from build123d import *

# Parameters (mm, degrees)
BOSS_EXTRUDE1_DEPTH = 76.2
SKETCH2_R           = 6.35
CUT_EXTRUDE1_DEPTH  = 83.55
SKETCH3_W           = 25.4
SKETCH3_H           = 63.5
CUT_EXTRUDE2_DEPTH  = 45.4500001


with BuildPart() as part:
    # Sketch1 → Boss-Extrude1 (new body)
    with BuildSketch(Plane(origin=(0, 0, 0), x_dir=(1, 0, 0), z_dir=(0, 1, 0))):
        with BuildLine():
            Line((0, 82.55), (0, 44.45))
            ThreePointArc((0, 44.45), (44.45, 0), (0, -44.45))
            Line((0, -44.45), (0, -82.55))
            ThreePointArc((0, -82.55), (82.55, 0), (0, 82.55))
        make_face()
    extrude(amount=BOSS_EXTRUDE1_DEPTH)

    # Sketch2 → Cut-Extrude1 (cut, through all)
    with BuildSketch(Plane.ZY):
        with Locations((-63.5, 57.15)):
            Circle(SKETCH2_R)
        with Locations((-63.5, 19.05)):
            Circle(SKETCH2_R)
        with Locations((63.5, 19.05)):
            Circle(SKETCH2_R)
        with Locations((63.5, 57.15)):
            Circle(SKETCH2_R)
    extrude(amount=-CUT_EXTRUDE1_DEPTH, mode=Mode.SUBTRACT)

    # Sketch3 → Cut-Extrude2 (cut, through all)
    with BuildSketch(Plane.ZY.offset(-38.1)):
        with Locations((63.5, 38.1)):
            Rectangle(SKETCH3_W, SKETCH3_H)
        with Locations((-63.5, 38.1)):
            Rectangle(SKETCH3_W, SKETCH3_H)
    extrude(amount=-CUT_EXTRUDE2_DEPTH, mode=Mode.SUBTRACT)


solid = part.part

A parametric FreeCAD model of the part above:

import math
import FreeCAD as App
import Part
import Sketcher

V = App.Vector
Q = App.Units.Quantity


def add_polygon(sketch, points):
    """Adds a closed chain of lines whose ends are joined by coincident constraints."""
    first, n = sketch.GeometryCount, len(points)
    for a, b in zip(points, points[1:] + points[:1]):
        sketch.addGeometry(Part.LineSegment(App.Vector(*a, 0), App.Vector(*b, 0)), False)
    for i in range(n):
        sketch.addConstraint(Sketcher.Constraint("Coincident", first + i, 2, first + (i + 1) % n, 1))

doc = App.newDocument("Part")
body = doc.addObject("PartDesign::Body", "Body")

# Sketch on XZ plane
sketch1 = doc.addObject("Sketcher::SketchObject", "Sketch")
body.addObject(sketch1)
sketch1.AttachmentSupport = (doc.XZ_Plane, [""])
sketch1.MapMode = "FlatFace"
sketch1.addGeometry([
    Part.LineSegment(V(0, -83, 0), V(0, -44, 0)),
    Part.ArcOfCircle(Part.Circle(V(0, 0, 0), V(0, 0, 1), 44), math.radians(-90), math.radians(90)),
    Part.LineSegment(V(0, 44, 0), V(0, 83, 0)),
    Part.ArcOfCircle(Part.Circle(V(0, 0, 0), V(0, 0, 1), 83), math.radians(-90), math.radians(90)),
], False)
sketch1.addConstraint([
    Sketcher.Constraint("Coincident", 0, 2, 1, 1),
    Sketcher.Constraint("Coincident", 1, 2, 2, 1),
    Sketcher.Constraint("Coincident", 2, 2, 3, 2),
    Sketcher.Constraint("Coincident", 3, 1, 0, 1),
    Sketcher.Constraint("Vertical", 0),
    Sketcher.Constraint("Vertical", 2),
    Sketcher.Constraint("Coincident", 1, 3, -1, 1),
    Sketcher.Constraint("Coincident", 3, 3, -1, 1),
    Sketcher.Constraint("PointOnObject", 0, 2, -2),
    Sketcher.Constraint("PointOnObject", 1, 2, -2),
    Sketcher.Constraint("Radius", 1, Q("1.75 in")),
    Sketcher.Constraint("Radius", 3, Q("3.25 in")),
])
pad1 = doc.addObject("PartDesign::Pad", "Pad")
body.addObject(pad1)
pad1.Profile = sketch1
pad1.Length = Q("3 in")
pad1.Reversed = True

# Sketch on YZ plane
sketch2 = doc.addObject("Sketcher::SketchObject", "Sketch001")
body.addObject(sketch2)
sketch2.AttachmentSupport = (doc.YZ_Plane, [""])
sketch2.MapMode = "FlatFace"
sketch2.addGeometry([
    Part.Circle(V(57, -64, 0), V(0, 0, 1), 6),
    Part.Circle(V(19, -64, 0), V(0, 0, 1), 6),
    Part.Circle(V(19, 64, 0), V(0, 0, 1), 6),
    Part.Circle(V(57, 64, 0), V(0, 0, 1), 6),
], False)
sketch2.addConstraint([
    Sketcher.Constraint("Equal", 0, 1),
    Sketcher.Constraint("Equal", 1, 2),
    Sketcher.Constraint("Equal", 2, 3),
    Sketcher.Constraint("Symmetric", 1, 3, 2, 3, -1),
    Sketcher.Constraint("Symmetric", 0, 3, 3, 3, -1),
    Sketcher.Constraint("Horizontal", 0, 3, 1, 3),
    Sketcher.Constraint("Diameter", 0, Q("0.5 in")),
    Sketcher.Constraint("DistanceY", 1, 3, 2, 3, Q("5 in")),
    Sketcher.Constraint("DistanceX", 1, 3, 0, 3, Q("1.5 in")),
    Sketcher.Constraint("DistanceX", -1, 1, 0, 3, Q("2.25 in")),
])
pocket1 = doc.addObject("PartDesign::Pocket", "Pocket")
body.addObject(pocket1)
pocket1.Profile = sketch2
pocket1.Type = "ThroughAll"
pocket1.Reversed = True

# Sketch on YZ plane
sketch3 = doc.addObject("Sketcher::SketchObject", "Sketch002")
body.addObject(sketch3)
sketch3.AttachmentSupport = (doc.YZ_Plane, [""])
sketch3.MapMode = "FlatFace"
sketch3.AttachmentOffset = App.Placement(V(0, 0, 1.5 * 25.4), App.Rotation())
add_polygon(sketch3, [(70, 51), (6, 51), (6, 76), (70, 76)])  # lines 0-3
add_polygon(sketch3, [(70, -76), (6, -76), (6, -51), (70, -51)])  # lines 4-7
sketch3.addConstraint([
    Sketcher.Constraint("Horizontal", 0),
    Sketcher.Constraint("Vertical", 1),
    Sketcher.Constraint("Horizontal", 2),
    Sketcher.Constraint("Vertical", 3),
    Sketcher.Constraint("Horizontal", 4),
    Sketcher.Constraint("Vertical", 5),
    Sketcher.Constraint("Horizontal", 6),
    Sketcher.Constraint("Vertical", 7),
    Sketcher.Constraint("Symmetric", 1, 2, 4, 2, -1),
    Sketcher.Constraint("Symmetric", 3, 2, 6, 2, -1),
    Sketcher.Constraint("DistanceY", 1, 1, 1, 2, Q("1 in")),
    Sketcher.Constraint("DistanceX", 0, 2, 0, 1, Q("2.5 in")),
    Sketcher.Constraint("DistanceY", -1, 1, 0, 2, Q("2 in")),
    Sketcher.Constraint("DistanceX", -1, 1, 0, 2, Q("0.25 in")),
])
pocket2 = doc.addObject("PartDesign::Pocket", "Pocket001")
body.addObject(pocket2)
pocket2.Profile = sketch3
pocket2.Type = "ThroughAll"
pocket2.Reversed = True

doc.recompute()
